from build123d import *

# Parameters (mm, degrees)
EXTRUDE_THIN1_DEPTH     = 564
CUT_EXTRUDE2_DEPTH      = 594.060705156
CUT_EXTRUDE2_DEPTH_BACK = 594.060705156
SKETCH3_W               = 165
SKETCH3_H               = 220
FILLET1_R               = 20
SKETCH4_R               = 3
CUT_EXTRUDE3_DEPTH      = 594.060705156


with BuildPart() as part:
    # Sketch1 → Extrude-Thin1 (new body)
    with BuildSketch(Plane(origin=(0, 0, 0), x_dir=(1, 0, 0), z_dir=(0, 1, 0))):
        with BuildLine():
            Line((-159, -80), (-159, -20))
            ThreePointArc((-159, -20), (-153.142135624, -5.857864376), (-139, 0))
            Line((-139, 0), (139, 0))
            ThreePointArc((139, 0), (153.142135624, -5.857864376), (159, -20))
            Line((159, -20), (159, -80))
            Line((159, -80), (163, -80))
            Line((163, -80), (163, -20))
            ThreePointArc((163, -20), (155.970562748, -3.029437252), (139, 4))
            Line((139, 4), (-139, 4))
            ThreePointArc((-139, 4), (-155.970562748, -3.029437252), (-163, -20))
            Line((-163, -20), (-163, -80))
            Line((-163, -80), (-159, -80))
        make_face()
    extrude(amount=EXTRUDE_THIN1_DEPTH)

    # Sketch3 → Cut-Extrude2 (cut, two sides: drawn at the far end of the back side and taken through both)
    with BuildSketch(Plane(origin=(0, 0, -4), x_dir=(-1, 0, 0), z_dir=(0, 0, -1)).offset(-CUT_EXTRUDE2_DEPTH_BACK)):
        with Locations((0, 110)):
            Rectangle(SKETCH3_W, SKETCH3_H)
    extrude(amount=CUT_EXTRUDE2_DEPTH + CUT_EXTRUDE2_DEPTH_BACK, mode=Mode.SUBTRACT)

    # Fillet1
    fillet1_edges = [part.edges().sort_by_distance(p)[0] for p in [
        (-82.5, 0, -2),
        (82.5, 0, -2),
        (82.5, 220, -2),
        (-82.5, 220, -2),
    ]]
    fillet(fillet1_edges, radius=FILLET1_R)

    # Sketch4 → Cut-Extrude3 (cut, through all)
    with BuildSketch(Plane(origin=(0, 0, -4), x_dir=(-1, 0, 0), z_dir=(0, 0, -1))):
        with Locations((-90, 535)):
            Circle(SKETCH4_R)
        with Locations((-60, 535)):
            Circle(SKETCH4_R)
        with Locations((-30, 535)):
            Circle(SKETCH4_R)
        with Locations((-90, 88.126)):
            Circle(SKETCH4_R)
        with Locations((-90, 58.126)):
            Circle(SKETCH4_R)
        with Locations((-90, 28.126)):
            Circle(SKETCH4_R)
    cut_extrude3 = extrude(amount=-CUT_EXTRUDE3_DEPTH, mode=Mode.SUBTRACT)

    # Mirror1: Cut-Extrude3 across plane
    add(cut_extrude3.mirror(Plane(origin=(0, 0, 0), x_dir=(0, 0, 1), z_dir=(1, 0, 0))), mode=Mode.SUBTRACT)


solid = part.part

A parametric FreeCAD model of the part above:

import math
import FreeCAD as App
import Part
import Sketcher
from FreeCAD import Vector
Q = App.Units.Quantity


def edges_at(feature, points):
    """Names of the edges that pass closest to the given points."""
    edges = feature.Shape.Edges
    near = lambda p: min(range(len(edges)), key=lambda i: edges[i].distToShape(Part.Vertex(*p))[0])
    return sorted({f"Edge{near(p) + 1}" for p in points})

doc = App.newDocument("Part")
body = doc.addObject("PartDesign::Body", "Body")

sketch1 = body.newObject("Sketcher::SketchObject", "Sketch")
sketch1.AttachmentSupport = (doc.getObject("XZ_Plane"), [""])
sketch1.MapMode = "FlatFace"
sketch1.addGeometry(Part.LineSegment(Vector(-159, 80, 0), Vector(-159, 20, 0)), False)
sketch1.addGeometry(Part.ArcOfCircle(Part.Circle(Vector(-139, 20, 0), Vector(0, 0, 1), 20), math.radians(180), math.radians(270)), False)
sketch1.addGeometry(Part.LineSegment(Vector(-139, 0, 0), Vector(139, 0, 0)), False)
sketch1.addGeometry(Part.ArcOfCircle(Part.Circle(Vector(139, 20, 0), Vector(0, 0, 1), 20), math.radians(-90), math.radians(0)), False)
sketch1.addGeometry(Part.LineSegment(Vector(159, 20, 0), Vector(159, 80, 0)), False)
sketch1.addGeometry(Part.LineSegment(Vector(159, 80, 0), Vector(163, 80, 0)), False)
sketch1.addGeometry(Part.LineSegment(Vector(163, 80, 0), Vector(163, 20, 0)), False)
sketch1.addGeometry(Part.ArcOfCircle(Part.Circle(Vector(139, 20, 0), Vector(0, 0, 1), 24), math.radians(-90), math.radians(0)), False)
sketch1.addGeometry(Part.LineSegment(Vector(139, -4, 0), Vector(-139, -4, 0)), False)
sketch1.addGeometry(Part.ArcOfCircle(Part.Circle(Vector(-139, 20, 0), Vector(0, 0, 1), 24), math.radians(-180), math.radians(-90)), False)
sketch1.addGeometry(Part.LineSegment(Vector(-163, 20, 0), Vector(-163, 80, 0)), False)
sketch1.addGeometry(Part.LineSegment(Vector(-163, 80, 0), Vector(-159, 80, 0)), False)
sketch1.addConstraint(Sketcher.Constraint("Tangent", 0, 2, 1, 1))
sketch1.addConstraint(Sketcher.Constraint("Tangent", 1, 2, 2, 1))
sketch1.addConstraint(Sketcher.Constraint("Tangent", 2, 2, 3, 1))
sketch1.addConstraint(Sketcher.Constraint("Tangent", 3, 2, 4, 1))
sketch1.addConstraint(Sketcher.Constraint("Coincident", 4, 2, 5, 1))
sketch1.addConstraint(Sketcher.Constraint("Coincident", 5, 2, 6, 1))
sketch1.addConstraint(Sketcher.Constraint("Tangent", 6, 2, 7, 2))
sketch1.addConstraint(Sketcher.Constraint("Tangent", 7, 1, 8, 1))
sketch1.addConstraint(Sketcher.Constraint("Tangent", 8, 2, 9, 2))
sketch1.addConstraint(Sketcher.Constraint("Tangent", 9, 1, 10, 1))
sketch1.addConstraint(Sketcher.Constraint("Coincident", 10, 2, 11, 1))
sketch1.addConstraint(Sketcher.Constraint("Coincident", 11, 2, 0, 1))
sketch1.addConstraint(Sketcher.Constraint("Vertical", 0))
sketch1.addConstraint(Sketcher.Constraint("Horizontal", 2))
sketch1.addConstraint(Sketcher.Constraint("Vertical", 4))
sketch1.addConstraint(Sketcher.Constraint("Horizontal", 5))
sketch1.addConstraint(Sketcher.Constraint("Vertical", 6))
sketch1.addConstraint(Sketcher.Constraint("Horizontal", 8))
sketch1.addConstraint(Sketcher.Constraint("Vertical", 10))
sketch1.addConstraint(Sketcher.Constraint("Horizontal", 11))
sketch1.addConstraint(Sketcher.Constraint("Coincident", 7, 3, 3, 3))
sketch1.addConstraint(Sketcher.Constraint("Coincident", 9, 3, 1, 3))
sketch1.addConstraint(Sketcher.Constraint("Equal", 1, 3))
sketch1.addConstraint(Sketcher.Constraint("Symmetric", 1, 2, 2, 2, -1, 1))
sketch1.addConstraint(Sketcher.Constraint("Horizontal", 5, 2, 10, 2))
sketch1.addConstraint(Sketcher.Constraint("Radius", 1, Q("20 mm")))
sketch1.addConstraint(Sketcher.Constraint("Radius", 7, Q("24 mm")))
sketch1.addConstraint(Sketcher.Constraint("DistanceX", 2, 1, 2, 2, Q("278 mm")))
sketch1.addConstraint(Sketcher.Constraint("DistanceY", 0, 2, 0, 1, Q("60 mm")))
pad1 = body.newObject("PartDesign::Pad", "Pad")
pad1.Profile = sketch1
pad1.Length = 564
pad1.Reversed = True

sketch2 = body.newObject("Sketcher::SketchObject", "Sketch001")
sketch2.AttachmentSupport = (doc.getObject("XY_Plane"), [""])
sketch2.MapMode = "FlatFace"
sketch2.AttachmentOffset = App.Placement(Vector(0, 0, -4), App.Rotation())
sketch2.addGeometry(Part.LineSegment(Vector(82.5, 220, 0), Vector(82.5, 0, 0)), False)
sketch2.addGeometry(Part.LineSegment(Vector(82.5, 0, 0), Vector(-82.5, 0, 0)), False)
sketch2.addGeometry(Part.LineSegment(Vector(-82.5, 0, 0), Vector(-82.5, 220, 0)), False)
sketch2.addGeometry(Part.LineSegment(Vector(-82.5, 220, 0), Vector(82.5, 220, 0)), False)
sketch2.addConstraint(Sketcher.Constraint("Coincident", 0, 2, 1, 1))
sketch2.addConstraint(Sketcher.Constraint("Coincident", 1, 2, 2, 1))
sketch2.addConstraint(Sketcher.Constraint("Coincident", 2, 2, 3, 1))
sketch2.addConstraint(Sketcher.Constraint("Coincident", 3, 2, 0, 1))
sketch2.addConstraint(Sketcher.Constraint("Vertical", 0))
sketch2.addConstraint(Sketcher.Constraint("Horizontal", 1))
sketch2.addConstraint(Sketcher.Constraint("Vertical", 2))
sketch2.addConstraint(Sketcher.Constraint("Horizontal", 3))
sketch2.addConstraint(Sketcher.Constraint("Symmetric", 0, 2, 1, 2, -1, 1))
sketch2.addConstraint(Sketcher.Constraint("DistanceX", 1, 2, 1, 1, Q("165 mm")))
sketch2.addConstraint(Sketcher.Constraint("DistanceY", 0, 2, 0, 1, Q("220 mm")))
pocket1 = body.newObject("PartDesign::Pocket", "Pocket")
pocket1.Profile = sketch2
pocket1.Type = "ThroughAll"
pocket1.Midplane = True
doc.recompute()

fillet = body.newObject("PartDesign::Fillet", "Fillet")
fillet.Base = (pocket1, edges_at(pocket1, [
    (-82.5, 0, -2),
    (82.5, 0, -2),
    (82.5, 220, -2),
    (-82.5, 220, -2),
]))
fillet.Radius = 20

sketch3 = body.newObject("Sketcher::SketchObject", "Sketch002")
sketch3.AttachmentSupport = (doc.getObject("XY_Plane"), [""])
sketch3.MapMode = "FlatFace"
sketch3.AttachmentOffset = App.Placement(Vector(0, 0, -4), App.Rotation())
sketch3.addGeometry(Part.Circle(Vector(90, 535, 0), Vector(0, 0, 1), 3), False)
sketch3.addGeometry(Part.Circle(Vector(60, 535, 0), Vector(0, 0, 1), 3), False)
sketch3.addGeometry(Part.Circle(Vector(30, 535, 0), Vector(0, 0, 1), 3), False)
sketch3.addGeometry(Part.Circle(Vector(90, 88.126, 0), Vector(0, 0, 1), 3), False)
sketch3.addGeometry(Part.Circle(Vector(90, 58.126, 0), Vector(0, 0, 1), 3), False)
sketch3.addGeometry(Part.Circle(Vector(90, 28.126, 0), Vector(0, 0, 1), 3), False)
sketch3.addConstraint(Sketcher.Constraint("Equal", 0, 1))
sketch3.addConstraint(Sketcher.Constraint("Equal", 1, 2))
sketch3.addConstraint(Sketcher.Constraint("Equal", 2, 3))
sketch3.addConstraint(Sketcher.Constraint("Equal", 3, 4))
sketch3.addConstraint(Sketcher.Constraint("Equal", 4, 5))
sketch3.addConstraint(Sketcher.Constraint("Horizontal", 0, 3, 1, 3))
sketch3.addConstraint(Sketcher.Constraint("Horizontal", 1, 3, 2, 3))
sketch3.addConstraint(Sketcher.Constraint("Vertical", 0, 3, 3, 3))
sketch3.addConstraint(Sketcher.Constraint("Vertical", 3, 3, 4, 3))
sketch3.addConstraint(Sketcher.Constraint("Vertical", 4, 3, 5, 3))
sketch3.addConstraint(Sketcher.Constraint("Diameter", 0, Q("6 mm")))
sketch3.addConstraint(Sketcher.Constraint("DistanceX", -1, 1, 0, 3, Q("90 mm")))
sketch3.addConstraint(Sketcher.Constraint("DistanceY", -1, 1, 0, 3, Q("535 mm")))
sketch3.addConstraint(Sketcher.Constraint("DistanceX", -1, 1, 1, 3, Q("60 mm")))
sketch3.addConstraint(Sketcher.Constraint("DistanceX", -1, 1, 2, 3, Q("30 mm")))
sketch3.addConstraint(Sketcher.Constraint("DistanceY", 4, 3, 3, 3, Q("30 mm")))
sketch3.addConstraint(Sketcher.Constraint("DistanceY", 5, 3, 4, 3, Q("30 mm")))
sketch3.addConstraint(Sketcher.Constraint("DistanceY", -1, 1, 3, 3, Q("88.126 mm")))
pocket2 = body.newObject("PartDesign::Pocket", "Pocket001")
pocket2.Profile = sketch3
pocket2.Type = "ThroughAll"
pocket2.Reversed = True
doc.recompute()

mirrored = body.newObject("PartDesign::Mirrored", "Mirrored")
mirrored.Originals = [pocket2]
mirrored.MirrorPlane = (doc.getObject("YZ_Plane"), [""])
body.Tip = mirrored

doc.recompute()
